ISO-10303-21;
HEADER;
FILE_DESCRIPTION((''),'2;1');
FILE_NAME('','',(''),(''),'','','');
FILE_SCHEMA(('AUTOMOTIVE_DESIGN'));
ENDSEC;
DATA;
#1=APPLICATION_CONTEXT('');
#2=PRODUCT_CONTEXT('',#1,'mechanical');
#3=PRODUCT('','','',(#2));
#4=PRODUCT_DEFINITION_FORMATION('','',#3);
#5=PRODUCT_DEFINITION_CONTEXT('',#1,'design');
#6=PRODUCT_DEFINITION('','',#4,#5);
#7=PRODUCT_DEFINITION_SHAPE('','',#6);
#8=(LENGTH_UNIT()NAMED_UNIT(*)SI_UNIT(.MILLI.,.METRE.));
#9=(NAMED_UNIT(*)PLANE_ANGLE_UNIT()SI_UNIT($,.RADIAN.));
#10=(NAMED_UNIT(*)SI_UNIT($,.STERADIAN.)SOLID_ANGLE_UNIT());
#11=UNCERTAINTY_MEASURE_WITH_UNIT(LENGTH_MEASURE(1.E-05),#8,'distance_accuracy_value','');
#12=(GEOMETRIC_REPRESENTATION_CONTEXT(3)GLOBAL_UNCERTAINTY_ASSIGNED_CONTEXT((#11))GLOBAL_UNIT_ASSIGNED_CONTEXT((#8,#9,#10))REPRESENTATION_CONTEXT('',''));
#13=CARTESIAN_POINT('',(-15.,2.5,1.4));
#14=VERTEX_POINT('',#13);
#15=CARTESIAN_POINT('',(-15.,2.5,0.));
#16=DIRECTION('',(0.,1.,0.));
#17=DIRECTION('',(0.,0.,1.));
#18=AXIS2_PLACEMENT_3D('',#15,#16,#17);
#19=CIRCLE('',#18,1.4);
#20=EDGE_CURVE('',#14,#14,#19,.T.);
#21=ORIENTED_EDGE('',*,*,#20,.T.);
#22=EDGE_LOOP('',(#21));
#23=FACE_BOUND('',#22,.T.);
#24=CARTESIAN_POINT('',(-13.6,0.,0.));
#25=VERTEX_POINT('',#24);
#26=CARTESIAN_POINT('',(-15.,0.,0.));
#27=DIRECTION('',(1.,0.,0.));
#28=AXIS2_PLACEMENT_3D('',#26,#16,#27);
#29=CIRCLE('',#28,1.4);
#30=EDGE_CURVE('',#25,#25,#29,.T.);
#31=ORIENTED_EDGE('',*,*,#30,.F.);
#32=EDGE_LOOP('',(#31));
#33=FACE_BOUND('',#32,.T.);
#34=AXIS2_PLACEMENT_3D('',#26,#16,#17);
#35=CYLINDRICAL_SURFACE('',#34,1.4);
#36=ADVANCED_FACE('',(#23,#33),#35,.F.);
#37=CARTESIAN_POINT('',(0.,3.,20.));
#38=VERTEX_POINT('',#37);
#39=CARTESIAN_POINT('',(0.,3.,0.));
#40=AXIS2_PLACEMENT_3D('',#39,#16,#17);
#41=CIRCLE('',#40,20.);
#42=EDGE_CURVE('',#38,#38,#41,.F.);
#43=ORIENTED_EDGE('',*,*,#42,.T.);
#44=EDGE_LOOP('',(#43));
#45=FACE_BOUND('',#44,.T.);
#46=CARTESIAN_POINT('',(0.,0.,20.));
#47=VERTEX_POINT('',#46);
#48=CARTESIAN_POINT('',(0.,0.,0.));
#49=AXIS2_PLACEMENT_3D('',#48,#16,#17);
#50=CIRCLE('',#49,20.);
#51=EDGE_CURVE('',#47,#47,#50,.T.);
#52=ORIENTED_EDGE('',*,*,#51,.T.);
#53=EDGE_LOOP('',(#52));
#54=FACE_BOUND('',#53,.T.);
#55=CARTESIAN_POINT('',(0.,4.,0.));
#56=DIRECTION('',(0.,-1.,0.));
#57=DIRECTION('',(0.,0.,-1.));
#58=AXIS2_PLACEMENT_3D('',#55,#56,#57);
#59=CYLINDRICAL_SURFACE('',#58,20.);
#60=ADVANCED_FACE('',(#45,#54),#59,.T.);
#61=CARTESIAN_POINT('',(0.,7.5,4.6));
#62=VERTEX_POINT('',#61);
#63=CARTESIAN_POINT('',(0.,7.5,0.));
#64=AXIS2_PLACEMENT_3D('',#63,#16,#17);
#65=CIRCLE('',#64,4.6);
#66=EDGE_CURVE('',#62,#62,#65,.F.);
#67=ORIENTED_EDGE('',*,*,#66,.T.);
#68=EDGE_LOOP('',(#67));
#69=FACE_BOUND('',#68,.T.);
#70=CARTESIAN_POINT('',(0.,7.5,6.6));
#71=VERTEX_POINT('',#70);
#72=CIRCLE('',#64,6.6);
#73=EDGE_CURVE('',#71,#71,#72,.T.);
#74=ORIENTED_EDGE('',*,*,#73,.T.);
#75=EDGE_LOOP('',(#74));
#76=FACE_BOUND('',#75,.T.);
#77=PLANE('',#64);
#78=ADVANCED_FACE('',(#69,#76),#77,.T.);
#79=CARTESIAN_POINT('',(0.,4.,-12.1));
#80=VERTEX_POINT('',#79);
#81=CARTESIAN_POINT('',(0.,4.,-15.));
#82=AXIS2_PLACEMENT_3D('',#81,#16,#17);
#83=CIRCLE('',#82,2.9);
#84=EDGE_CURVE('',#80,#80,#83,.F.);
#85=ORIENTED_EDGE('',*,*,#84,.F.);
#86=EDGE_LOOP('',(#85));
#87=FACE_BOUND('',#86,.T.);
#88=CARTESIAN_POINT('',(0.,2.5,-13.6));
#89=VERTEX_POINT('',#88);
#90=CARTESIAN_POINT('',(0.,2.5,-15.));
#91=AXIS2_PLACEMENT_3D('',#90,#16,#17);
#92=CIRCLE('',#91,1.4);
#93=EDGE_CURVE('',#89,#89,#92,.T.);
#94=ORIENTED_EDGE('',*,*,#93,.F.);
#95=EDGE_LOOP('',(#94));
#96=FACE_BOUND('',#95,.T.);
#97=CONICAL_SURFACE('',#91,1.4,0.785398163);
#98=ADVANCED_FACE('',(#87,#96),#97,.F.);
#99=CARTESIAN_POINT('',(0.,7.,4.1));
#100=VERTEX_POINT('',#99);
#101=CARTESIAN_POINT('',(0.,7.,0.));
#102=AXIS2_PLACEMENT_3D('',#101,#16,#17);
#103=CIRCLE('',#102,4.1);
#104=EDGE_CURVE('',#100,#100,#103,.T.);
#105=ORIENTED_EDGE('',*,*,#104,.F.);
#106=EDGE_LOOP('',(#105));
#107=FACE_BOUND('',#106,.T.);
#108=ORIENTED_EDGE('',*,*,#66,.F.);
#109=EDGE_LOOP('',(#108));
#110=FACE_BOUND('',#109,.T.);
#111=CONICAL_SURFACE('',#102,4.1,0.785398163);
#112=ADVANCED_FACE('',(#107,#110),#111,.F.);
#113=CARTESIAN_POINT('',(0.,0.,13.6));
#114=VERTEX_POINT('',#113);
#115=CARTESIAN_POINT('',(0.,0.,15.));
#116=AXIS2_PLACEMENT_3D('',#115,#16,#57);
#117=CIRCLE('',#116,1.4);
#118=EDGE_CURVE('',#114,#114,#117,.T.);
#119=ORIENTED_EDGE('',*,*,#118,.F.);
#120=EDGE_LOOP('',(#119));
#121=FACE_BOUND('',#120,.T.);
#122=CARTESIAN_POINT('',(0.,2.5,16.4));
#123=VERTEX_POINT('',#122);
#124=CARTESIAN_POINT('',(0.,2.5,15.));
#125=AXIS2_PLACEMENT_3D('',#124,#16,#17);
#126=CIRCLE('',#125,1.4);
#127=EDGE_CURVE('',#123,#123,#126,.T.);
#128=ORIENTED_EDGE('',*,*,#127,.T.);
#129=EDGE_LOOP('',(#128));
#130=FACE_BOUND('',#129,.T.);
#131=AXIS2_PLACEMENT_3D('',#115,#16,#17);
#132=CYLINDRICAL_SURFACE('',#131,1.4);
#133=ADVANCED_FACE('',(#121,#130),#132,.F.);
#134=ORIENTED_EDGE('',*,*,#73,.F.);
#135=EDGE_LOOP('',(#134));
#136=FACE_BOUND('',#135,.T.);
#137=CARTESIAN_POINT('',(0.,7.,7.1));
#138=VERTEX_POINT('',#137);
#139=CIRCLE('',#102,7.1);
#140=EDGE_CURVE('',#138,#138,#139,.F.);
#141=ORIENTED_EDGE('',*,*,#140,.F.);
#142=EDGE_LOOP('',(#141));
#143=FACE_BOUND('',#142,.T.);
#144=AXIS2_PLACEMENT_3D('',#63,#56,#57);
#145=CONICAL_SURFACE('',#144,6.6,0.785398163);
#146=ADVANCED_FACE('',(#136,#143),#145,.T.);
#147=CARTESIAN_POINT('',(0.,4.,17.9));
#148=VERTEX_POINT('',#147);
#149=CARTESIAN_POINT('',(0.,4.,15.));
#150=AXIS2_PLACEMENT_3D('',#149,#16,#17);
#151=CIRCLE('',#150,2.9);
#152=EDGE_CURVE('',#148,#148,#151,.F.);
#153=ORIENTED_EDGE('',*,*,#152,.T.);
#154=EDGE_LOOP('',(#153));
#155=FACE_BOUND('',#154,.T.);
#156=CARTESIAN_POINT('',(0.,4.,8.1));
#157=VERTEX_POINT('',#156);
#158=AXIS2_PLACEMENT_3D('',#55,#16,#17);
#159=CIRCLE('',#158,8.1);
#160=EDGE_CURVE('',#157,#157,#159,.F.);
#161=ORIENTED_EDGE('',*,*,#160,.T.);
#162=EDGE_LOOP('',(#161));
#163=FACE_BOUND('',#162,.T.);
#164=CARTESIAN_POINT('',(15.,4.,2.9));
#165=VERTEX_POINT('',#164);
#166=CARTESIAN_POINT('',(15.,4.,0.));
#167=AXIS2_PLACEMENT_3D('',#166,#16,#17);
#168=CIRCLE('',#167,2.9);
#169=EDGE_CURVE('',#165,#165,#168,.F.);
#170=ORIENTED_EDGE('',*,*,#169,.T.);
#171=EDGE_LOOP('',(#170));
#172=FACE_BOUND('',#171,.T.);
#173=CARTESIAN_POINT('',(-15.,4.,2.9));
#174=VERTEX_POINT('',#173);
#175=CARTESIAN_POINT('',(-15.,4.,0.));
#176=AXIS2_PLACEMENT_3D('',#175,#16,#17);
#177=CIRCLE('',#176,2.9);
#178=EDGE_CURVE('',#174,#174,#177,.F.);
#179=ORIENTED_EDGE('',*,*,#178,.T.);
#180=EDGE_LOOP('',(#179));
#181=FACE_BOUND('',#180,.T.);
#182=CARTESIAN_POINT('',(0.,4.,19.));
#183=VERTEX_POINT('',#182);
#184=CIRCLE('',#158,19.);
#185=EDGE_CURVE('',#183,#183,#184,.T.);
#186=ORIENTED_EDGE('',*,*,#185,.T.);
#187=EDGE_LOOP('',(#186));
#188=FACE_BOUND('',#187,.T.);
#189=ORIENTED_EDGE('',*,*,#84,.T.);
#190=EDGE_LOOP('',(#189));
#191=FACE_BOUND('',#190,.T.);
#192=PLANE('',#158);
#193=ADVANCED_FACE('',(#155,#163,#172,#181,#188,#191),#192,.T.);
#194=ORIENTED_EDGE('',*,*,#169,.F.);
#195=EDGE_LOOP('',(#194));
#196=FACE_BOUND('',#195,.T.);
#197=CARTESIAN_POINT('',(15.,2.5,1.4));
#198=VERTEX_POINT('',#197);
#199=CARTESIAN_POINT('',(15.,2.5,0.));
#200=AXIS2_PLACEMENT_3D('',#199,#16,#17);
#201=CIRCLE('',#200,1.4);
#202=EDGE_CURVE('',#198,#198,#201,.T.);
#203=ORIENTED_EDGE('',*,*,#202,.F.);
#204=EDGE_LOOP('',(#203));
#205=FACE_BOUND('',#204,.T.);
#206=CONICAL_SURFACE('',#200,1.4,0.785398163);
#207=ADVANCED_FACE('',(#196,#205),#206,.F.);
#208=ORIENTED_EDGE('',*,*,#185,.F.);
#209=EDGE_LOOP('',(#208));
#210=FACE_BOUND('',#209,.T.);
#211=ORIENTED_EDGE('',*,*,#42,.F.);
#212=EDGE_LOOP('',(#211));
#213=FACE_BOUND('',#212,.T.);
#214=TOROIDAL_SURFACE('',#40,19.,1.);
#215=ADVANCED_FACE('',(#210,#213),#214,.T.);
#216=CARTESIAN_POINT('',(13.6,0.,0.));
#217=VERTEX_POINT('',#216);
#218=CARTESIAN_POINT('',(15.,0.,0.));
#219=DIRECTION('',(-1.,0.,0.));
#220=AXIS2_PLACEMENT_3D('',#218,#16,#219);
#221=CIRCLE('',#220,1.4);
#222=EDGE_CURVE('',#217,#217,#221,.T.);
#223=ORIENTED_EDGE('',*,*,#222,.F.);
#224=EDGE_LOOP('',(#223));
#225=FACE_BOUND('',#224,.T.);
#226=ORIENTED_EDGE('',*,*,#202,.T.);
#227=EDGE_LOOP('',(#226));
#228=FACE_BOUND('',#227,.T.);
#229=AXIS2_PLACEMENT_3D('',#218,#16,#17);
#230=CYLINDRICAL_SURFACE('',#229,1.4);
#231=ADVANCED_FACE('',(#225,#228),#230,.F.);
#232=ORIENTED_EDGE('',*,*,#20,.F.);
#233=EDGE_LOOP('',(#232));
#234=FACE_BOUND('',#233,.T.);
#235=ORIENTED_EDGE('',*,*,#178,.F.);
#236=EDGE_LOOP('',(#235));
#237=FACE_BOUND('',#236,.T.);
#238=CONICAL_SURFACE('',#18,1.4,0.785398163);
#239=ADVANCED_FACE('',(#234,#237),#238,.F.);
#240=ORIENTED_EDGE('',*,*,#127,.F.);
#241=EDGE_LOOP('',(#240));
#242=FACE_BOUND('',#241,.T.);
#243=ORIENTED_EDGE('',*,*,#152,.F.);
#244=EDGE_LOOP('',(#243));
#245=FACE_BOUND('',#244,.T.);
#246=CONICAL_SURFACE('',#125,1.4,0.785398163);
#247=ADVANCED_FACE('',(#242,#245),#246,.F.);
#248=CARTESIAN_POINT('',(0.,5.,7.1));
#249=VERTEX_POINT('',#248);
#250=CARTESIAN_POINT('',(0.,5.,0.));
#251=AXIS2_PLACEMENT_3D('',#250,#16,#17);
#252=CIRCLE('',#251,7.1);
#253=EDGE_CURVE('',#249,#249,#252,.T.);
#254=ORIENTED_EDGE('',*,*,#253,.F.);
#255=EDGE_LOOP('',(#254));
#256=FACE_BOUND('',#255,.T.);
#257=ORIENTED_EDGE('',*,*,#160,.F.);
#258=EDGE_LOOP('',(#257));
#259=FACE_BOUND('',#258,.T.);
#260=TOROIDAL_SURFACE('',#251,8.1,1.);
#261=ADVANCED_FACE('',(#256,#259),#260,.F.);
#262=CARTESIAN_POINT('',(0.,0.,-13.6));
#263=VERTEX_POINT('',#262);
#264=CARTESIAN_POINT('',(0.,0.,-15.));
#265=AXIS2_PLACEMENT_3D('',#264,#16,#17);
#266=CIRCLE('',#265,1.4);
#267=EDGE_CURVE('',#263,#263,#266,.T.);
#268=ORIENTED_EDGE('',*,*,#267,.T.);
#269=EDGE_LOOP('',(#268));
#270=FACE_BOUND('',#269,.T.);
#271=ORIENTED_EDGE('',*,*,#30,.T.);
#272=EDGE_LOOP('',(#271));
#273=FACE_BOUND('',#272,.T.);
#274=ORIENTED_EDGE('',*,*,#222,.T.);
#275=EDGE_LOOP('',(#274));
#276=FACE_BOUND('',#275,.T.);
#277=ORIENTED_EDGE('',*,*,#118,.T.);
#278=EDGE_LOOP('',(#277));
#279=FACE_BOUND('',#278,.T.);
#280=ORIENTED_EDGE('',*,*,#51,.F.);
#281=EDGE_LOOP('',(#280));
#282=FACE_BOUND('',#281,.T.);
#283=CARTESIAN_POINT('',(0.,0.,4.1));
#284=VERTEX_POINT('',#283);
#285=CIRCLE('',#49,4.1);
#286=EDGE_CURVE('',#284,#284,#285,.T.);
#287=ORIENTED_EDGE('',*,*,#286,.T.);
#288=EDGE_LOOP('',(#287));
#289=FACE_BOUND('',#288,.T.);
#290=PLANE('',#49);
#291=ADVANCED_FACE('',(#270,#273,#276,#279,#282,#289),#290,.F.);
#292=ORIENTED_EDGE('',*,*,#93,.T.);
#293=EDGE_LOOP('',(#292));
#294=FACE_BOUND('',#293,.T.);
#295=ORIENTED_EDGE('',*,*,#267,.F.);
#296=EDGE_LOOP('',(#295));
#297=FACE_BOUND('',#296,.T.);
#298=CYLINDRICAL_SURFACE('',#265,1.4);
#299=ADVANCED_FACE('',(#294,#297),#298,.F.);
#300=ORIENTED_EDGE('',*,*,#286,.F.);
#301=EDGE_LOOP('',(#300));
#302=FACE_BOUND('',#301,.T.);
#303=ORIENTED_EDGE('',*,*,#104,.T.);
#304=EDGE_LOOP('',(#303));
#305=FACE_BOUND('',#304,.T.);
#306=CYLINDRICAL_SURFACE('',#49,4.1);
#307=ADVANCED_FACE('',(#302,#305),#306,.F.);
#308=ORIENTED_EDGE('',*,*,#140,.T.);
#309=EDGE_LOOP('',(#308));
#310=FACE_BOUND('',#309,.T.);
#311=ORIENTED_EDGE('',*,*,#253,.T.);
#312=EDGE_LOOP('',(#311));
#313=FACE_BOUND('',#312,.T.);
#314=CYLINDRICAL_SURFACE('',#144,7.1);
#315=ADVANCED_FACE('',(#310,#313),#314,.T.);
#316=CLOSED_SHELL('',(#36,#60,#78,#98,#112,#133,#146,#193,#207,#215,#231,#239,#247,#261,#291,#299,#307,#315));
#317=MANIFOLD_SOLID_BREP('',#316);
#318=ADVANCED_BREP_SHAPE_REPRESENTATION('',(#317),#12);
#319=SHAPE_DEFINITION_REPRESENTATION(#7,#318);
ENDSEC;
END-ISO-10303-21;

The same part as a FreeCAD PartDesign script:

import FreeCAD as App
import Part
import Sketcher
Q = App.Units.Quantity


def edges_at(feature, points):
    """Names of the edges that pass closest to the given points."""
    edges = feature.Shape.Edges
    near = lambda p: min(range(len(edges)), key=lambda i: edges[i].distToShape(Part.Vertex(*p))[0])
    return sorted({f"Edge{near(p) + 1}" for p in points})

doc = App.newDocument("Part")
body = doc.addObject("PartDesign::Body", "Body")

sketch1 = doc.addObject("Sketcher::SketchObject", "Sketch")
body.addObject(sketch1)
sketch1.AttachmentSupport = (doc.XZ_Plane, [""])
sketch1.MapMode = "FlatFace"
sketch1.addGeometry(Part.Circle(App.Vector(0, 0, 0), App.Vector(0, 0, 1), 20), False)
sketch1.addConstraint(Sketcher.Constraint("Coincident", 0, 3, -1, 1))
sketch1.addConstraint(Sketcher.Constraint("Diameter", 0, Q("40 mm")))
pad1 = doc.addObject("PartDesign::Pad", "Pad")
body.addObject(pad1)
pad1.Profile = sketch1
pad1.Length = 4
pad1.Reversed = True

sketch2 = doc.addObject("Sketcher::SketchObject", "Sketch001")
body.addObject(sketch2)
sketch2.AttachmentSupport = (doc.XZ_Plane, [""])
sketch2.MapMode = "FlatFace"
sketch2.AttachmentOffset = App.Placement(App.Vector(0, 0, -4), App.Rotation())
sketch2.addGeometry(Part.Circle(App.Vector(0, 0, 0), App.Vector(0, 0, 1), 4.1), False)
sketch2.addConstraint(Sketcher.Constraint("Coincident", 0, 3, -1, 1))
sketch2.addConstraint(Sketcher.Constraint("Diameter", 0, Q("8.2 mm")))
pocket1 = doc.addObject("PartDesign::Pocket", "Pocket")
body.addObject(pocket1)
pocket1.Profile = sketch2
pocket1.Type = "ThroughAll"
pocket1.Reversed = True

sketch3 = doc.addObject("Sketcher::SketchObject", "Sketch002")
body.addObject(sketch3)
sketch3.AttachmentSupport = (doc.XZ_Plane, [""])
sketch3.MapMode = "FlatFace"
sketch3.AttachmentOffset = App.Placement(App.Vector(0, 0, -4), App.Rotation())
sketch3.addGeometry(Part.Circle(App.Vector(0, -15, 0), App.Vector(0, 0, 1), 1.4), False)
sketch3.addConstraint(Sketcher.Constraint("PointOnObject", 0, 3, -2))
sketch3.addConstraint(Sketcher.Constraint("Diameter", 0, Q("2.8 mm")))
sketch3.addConstraint(Sketcher.Constraint("DistanceY", 0, 3, -1, 1, Q("15 mm")))
pocket2 = doc.addObject("PartDesign::Pocket", "Pocket001")
body.addObject(pocket2)
pocket2.Profile = sketch3
pocket2.Type = "ThroughAll"
pocket2.Reversed = True
doc.recompute()

chamfer = doc.addObject("PartDesign::Chamfer", "Chamfer")
body.addObject(chamfer)
chamfer.Base = (pocket2, edges_at(pocket2, [(0, 4, -16.4)]))
chamfer.Size = 1.5
doc.recompute()

polarpattern = doc.addObject("PartDesign::PolarPattern", "PolarPattern")
body.addObject(polarpattern)
polarpattern.Originals = [pocket2]
polarpattern.Axis = (doc.Y_Axis, [""])
polarpattern.Angle = 360
polarpattern.Occurrences = 4
body.Tip = polarpattern
doc.recompute()

chamfer2 = doc.addObject("PartDesign::Chamfer", "Chamfer001")
body.addObject(chamfer2)
chamfer2.Base = (polarpattern, edges_at(polarpattern, [(-16.4, 4, 0), (0, 4, 16.4), (16.4, 4, 0)]))
chamfer2.Size = 1.5
doc.recompute()

fillet = doc.addObject("PartDesign::Fillet", "Fillet")
body.addObject(fillet)
fillet.Base = (chamfer2, edges_at(chamfer2, [(0, 4, -20)]))
fillet.Radius = 1

sketch4 = doc.addObject("Sketcher::SketchObject", "Sketch003")
body.addObject(sketch4)
sketch4.AttachmentSupport = (doc.XZ_Plane, [""])
sketch4.MapMode = "FlatFace"
sketch4.AttachmentOffset = App.Placement(App.Vector(0, 0, -7.5), App.Rotation())
sketch4.addGeometry(Part.Circle(App.Vector(0, 0, 0), App.Vector(0, 0, 1), 7.1), False)
sketch4.addGeometry(Part.Circle(App.Vector(0, 0, 0), App.Vector(0, 0, 1), 4.1), False)
sketch4.addConstraint(Sketcher.Constraint("Coincident", 0, 3, -1, 1))
sketch4.addConstraint(Sketcher.Constraint("Coincident", 1, 3, -1, 1))
sketch4.addConstraint(Sketcher.Constraint("Diameter", 0, Q("14.2 mm")))
sketch4.addConstraint(Sketcher.Constraint("Diameter", 1, Q("8.2 mm")))
pad2 = doc.addObject("PartDesign::Pad", "Pad001")
body.addObject(pad2)
pad2.Profile = sketch4
pad2.Length = 3.5
doc.recompute()

chamfer3 = doc.addObject("PartDesign::Chamfer", "Chamfer002")
body.addObject(chamfer3)
chamfer3.Base = (pad2, edges_at(pad2, [(0, 7.5, -4.1)]))
chamfer3.Size = 0.5
doc.recompute()

fillet2 = doc.addObject("PartDesign::Fillet", "Fillet001")
body.addObject(fillet2)
fillet2.Base = (chamfer3, edges_at(chamfer3, [(0, 4, -7.1)]))
fillet2.Radius = 1
doc.recompute()

chamfer4 = doc.addObject("PartDesign::Chamfer", "Chamfer003")
body.addObject(chamfer4)
chamfer4.Base = (fillet2, edges_at(fillet2, [(0, 7.5, -7.1)]))
chamfer4.Size = 0.5

doc.recompute()
